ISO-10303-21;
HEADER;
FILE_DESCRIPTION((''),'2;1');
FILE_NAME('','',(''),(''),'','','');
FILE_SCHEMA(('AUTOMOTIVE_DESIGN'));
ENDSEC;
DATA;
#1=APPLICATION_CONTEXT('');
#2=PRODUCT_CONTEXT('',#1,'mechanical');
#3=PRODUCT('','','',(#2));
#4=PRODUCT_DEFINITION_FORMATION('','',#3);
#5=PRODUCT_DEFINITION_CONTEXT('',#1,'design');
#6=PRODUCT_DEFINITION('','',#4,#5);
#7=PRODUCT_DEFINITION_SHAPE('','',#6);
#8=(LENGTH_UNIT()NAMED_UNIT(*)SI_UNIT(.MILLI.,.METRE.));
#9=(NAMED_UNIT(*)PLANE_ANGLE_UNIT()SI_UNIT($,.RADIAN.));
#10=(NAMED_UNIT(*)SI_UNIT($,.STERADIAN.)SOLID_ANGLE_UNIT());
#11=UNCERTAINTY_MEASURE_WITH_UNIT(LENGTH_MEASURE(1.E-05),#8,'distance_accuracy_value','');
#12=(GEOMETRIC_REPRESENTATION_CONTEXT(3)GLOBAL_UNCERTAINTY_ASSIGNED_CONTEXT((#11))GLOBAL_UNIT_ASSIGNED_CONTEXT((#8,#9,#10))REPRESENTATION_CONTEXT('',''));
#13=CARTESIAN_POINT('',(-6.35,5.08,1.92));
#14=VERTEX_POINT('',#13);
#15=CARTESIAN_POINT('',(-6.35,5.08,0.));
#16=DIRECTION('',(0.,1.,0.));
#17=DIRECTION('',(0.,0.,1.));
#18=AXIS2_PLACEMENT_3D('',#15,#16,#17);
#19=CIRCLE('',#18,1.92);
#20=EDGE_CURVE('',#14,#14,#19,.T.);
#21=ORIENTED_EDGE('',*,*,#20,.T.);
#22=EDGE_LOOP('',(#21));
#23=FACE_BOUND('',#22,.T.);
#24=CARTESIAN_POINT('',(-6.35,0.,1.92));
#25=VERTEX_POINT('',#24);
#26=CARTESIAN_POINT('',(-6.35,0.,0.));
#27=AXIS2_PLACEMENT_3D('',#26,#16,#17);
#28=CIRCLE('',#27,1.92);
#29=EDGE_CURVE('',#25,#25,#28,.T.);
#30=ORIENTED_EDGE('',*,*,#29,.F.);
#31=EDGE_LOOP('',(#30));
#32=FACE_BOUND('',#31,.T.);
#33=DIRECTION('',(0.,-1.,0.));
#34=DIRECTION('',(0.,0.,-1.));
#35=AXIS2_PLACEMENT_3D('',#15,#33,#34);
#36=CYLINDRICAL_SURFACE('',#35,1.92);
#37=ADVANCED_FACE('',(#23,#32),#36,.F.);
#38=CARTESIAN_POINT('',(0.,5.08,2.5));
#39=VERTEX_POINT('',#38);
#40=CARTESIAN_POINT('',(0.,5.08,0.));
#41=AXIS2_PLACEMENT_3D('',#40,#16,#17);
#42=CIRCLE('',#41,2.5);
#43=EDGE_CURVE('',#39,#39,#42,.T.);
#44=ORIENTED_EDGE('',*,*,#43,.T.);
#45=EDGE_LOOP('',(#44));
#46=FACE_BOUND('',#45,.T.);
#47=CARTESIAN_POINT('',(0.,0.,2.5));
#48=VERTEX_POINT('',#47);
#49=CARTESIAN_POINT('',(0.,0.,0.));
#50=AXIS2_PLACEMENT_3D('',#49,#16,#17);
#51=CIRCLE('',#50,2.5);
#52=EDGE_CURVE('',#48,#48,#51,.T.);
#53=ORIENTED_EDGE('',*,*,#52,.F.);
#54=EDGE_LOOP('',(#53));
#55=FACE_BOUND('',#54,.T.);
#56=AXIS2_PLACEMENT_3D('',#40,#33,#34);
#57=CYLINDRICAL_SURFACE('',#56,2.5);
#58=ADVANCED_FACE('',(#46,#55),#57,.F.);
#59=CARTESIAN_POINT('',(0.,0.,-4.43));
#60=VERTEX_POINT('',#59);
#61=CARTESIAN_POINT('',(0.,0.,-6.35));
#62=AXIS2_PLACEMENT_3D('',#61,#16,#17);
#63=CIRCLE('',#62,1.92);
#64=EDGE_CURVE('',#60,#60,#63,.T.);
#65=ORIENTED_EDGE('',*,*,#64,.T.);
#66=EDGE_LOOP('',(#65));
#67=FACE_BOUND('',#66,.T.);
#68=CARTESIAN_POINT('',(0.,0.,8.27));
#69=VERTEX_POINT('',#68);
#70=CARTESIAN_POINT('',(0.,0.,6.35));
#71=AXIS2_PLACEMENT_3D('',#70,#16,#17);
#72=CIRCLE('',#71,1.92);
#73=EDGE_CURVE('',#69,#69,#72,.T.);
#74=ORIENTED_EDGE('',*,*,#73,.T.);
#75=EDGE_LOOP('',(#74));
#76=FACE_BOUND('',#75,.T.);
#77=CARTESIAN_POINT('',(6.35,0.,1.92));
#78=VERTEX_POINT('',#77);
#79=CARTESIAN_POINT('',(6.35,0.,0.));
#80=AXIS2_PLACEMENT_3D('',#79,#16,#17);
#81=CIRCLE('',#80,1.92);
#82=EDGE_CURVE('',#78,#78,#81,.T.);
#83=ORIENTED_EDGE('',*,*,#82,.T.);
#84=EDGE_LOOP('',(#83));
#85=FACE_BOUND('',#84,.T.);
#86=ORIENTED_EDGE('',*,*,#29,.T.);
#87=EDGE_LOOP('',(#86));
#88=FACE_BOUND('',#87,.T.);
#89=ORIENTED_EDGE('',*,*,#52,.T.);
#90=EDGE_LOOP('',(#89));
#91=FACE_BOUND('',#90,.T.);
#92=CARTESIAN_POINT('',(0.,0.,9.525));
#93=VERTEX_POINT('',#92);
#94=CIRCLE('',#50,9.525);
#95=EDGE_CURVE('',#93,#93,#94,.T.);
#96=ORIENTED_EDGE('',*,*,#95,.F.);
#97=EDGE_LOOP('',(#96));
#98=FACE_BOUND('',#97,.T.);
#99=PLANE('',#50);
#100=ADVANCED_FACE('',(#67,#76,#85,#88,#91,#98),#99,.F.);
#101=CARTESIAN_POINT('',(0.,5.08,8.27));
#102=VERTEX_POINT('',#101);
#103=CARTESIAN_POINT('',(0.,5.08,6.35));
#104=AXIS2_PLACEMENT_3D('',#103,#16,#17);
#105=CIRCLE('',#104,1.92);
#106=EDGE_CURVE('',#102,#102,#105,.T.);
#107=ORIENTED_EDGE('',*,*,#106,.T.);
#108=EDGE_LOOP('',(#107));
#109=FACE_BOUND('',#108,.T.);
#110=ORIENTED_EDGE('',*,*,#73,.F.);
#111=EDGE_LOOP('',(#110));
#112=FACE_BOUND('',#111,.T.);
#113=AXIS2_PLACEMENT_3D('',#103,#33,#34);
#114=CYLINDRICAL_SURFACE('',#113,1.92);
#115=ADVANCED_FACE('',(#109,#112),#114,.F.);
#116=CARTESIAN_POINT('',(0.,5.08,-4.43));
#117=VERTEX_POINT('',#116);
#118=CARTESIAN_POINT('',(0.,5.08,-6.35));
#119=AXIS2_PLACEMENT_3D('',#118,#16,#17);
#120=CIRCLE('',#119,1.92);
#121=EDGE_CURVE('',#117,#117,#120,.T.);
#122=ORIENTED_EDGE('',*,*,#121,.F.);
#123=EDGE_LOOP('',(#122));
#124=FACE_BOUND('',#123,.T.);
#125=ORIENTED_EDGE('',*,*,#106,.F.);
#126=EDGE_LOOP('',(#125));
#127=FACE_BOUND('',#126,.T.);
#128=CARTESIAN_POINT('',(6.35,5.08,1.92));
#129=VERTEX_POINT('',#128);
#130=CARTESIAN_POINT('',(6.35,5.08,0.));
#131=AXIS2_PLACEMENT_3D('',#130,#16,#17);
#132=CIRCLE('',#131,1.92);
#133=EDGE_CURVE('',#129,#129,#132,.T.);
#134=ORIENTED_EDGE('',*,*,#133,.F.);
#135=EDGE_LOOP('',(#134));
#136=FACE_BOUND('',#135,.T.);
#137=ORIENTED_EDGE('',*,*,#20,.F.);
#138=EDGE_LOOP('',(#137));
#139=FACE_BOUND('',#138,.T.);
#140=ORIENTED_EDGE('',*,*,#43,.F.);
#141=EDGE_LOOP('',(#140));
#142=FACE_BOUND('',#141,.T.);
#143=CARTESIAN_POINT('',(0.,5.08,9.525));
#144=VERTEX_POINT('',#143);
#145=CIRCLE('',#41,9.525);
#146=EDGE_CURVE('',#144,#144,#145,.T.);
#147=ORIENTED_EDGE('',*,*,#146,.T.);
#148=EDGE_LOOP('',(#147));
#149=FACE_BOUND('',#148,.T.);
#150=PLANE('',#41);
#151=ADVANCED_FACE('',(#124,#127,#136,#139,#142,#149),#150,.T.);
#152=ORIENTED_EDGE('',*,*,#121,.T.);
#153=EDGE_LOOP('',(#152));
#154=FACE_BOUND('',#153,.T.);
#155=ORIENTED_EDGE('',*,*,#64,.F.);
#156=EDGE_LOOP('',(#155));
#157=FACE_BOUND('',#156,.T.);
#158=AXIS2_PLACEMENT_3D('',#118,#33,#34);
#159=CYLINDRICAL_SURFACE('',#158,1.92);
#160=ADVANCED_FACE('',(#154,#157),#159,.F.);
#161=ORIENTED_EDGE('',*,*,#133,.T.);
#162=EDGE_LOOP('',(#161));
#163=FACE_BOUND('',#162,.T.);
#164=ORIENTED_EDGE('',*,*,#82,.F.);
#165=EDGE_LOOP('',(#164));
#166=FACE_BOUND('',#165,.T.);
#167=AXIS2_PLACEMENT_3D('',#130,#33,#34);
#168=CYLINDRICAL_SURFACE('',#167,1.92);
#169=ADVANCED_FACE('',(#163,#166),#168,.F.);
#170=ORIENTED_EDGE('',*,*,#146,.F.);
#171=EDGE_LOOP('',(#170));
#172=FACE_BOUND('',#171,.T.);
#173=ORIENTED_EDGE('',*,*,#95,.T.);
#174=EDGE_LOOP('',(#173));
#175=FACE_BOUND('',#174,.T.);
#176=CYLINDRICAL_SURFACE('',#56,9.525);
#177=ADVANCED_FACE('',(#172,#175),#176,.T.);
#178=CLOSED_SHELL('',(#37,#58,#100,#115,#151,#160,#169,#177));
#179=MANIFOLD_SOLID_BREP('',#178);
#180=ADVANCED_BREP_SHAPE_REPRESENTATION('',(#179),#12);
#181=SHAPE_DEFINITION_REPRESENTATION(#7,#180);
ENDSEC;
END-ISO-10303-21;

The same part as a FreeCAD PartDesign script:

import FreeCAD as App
import Part
import Sketcher
from FreeCAD import Vector
Q = App.Units.Quantity

doc = App.newDocument("Part")
body = doc.addObject("PartDesign::Body", "Body")

sketch1 = doc.addObject("Sketcher::SketchObject", "Sketch")
body.addObject(sketch1)
sketch1.AttachmentSupport = (doc.XZ_Plane, [""])
sketch1.MapMode = "FlatFace"
sketch1.addGeometry([
    Part.Circle(Vector(0, 0, 0), Vector(0, 0, 1), 9.5),
    Part.Circle(Vector(-6.3, 0, 0), Vector(0, 0, 1), 1.9),
    Part.Circle(Vector(0, -6.3, 0), Vector(0, 0, 1), 1.9),
    Part.Circle(Vector(6.3, 0, 0), Vector(0, 0, 1), 1.9),
    Part.Circle(Vector(0, 0, 0), Vector(0, 0, 1), 2.5),
    Part.Circle(Vector(0, 6.3, 0), Vector(0, 0, 1), 1.9),
], False)
sketch1.addConstraint([
    Sketcher.Constraint("Coincident", 0, 3, -1, 1),
    Sketcher.Constraint("Coincident", 4, 3, -1, 1),
    Sketcher.Constraint("Equal", 1, 2),
    Sketcher.Constraint("Equal", 2, 3),
    Sketcher.Constraint("Equal", 3, 5),
    Sketcher.Constraint("Symmetric", 1, 3, 3, 3, -1, 1),
    Sketcher.Constraint("Symmetric", 2, 3, 5, 3, -1, 1),
    Sketcher.Constraint("PointOnObject", 1, 3, -1),
    Sketcher.Constraint("PointOnObject", 2, 3, -2),
    Sketcher.Constraint("Diameter", 0, Q("0.75 in")),
    Sketcher.Constraint("DistanceX", 1, 3, 3, 3, Q("0.5 in")),
    Sketcher.Constraint("DistanceY", 2, 3, 5, 3, Q("0.5 in")),
    Sketcher.Constraint("Diameter", 1, 3.84),
    Sketcher.Constraint("Diameter", 4, 5.0),
])
pad1 = doc.addObject("PartDesign::Pad", "Pad")
body.addObject(pad1)
pad1.Profile = sketch1
pad1.Length = Q("0.2 in")
pad1.Reversed = True

doc.recompute()
